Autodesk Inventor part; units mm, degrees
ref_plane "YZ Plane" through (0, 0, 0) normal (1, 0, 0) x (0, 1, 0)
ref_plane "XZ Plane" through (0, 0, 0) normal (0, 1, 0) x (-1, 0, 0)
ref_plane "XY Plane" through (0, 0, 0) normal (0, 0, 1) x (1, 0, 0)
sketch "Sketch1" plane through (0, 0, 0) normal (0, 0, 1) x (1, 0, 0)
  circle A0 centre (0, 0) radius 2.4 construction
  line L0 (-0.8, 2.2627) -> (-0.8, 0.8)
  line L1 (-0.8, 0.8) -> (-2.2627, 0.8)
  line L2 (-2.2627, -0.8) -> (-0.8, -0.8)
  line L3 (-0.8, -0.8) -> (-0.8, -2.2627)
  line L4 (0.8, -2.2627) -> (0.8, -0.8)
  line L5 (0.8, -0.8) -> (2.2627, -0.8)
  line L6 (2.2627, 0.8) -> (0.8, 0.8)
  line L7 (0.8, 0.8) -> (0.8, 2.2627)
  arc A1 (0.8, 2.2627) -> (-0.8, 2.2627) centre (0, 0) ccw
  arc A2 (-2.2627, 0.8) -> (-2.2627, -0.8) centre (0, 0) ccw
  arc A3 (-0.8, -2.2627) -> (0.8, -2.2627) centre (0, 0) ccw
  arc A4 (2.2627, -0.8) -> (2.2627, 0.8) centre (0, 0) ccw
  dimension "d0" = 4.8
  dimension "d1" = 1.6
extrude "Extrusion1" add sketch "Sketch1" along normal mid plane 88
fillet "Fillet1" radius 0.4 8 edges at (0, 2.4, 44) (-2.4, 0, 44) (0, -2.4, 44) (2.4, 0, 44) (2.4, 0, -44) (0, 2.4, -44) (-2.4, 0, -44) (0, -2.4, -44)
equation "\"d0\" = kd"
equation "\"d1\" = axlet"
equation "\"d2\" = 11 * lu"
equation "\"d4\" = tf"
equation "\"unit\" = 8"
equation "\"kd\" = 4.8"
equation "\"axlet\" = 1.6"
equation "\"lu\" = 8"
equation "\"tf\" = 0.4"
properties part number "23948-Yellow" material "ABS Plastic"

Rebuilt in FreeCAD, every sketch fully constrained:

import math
import FreeCAD as App
import Part
import Sketcher


def edges_at(feature, points):
    """Names of the edges that pass closest to the given points."""
    edges = feature.Shape.Edges
    near = lambda p: min(range(len(edges)), key=lambda i: edges[i].distToShape(Part.Vertex(*p))[0])
    return sorted({f"Edge{near(p) + 1}" for p in points})

doc = App.newDocument("Part")
body = doc.addObject("PartDesign::Body", "Body")

sketch1 = body.newObject("Sketcher::SketchObject", "Sketch")
sketch1.AttachmentSupport = (doc.getObject("XY_Plane"), [""])
sketch1.MapMode = "FlatFace"
sketch1.addGeometry(Part.ArcOfCircle(Part.Circle(App.Vector(0, 0, 0), App.Vector(0, 0, 1), 2.4), math.radians(71), math.radians(109)), False)
sketch1.addGeometry(Part.LineSegment(App.Vector(-0.8, 2.3, 0), App.Vector(-0.8, 0.8, 0)), False)
sketch1.addGeometry(Part.LineSegment(App.Vector(-0.8, 0.8, 0), App.Vector(-2.3, 0.8, 0)), False)
sketch1.addGeometry(Part.ArcOfCircle(Part.Circle(App.Vector(0, 0, 0), App.Vector(0, 0, 1), 2.4), math.radians(161), math.radians(199)), False)
sketch1.addGeometry(Part.LineSegment(App.Vector(-2.3, -0.8, 0), App.Vector(-0.8, -0.8, 0)), False)
sketch1.addGeometry(Part.LineSegment(App.Vector(-0.8, -0.8, 0), App.Vector(-0.8, -2.3, 0)), False)
sketch1.addGeometry(Part.ArcOfCircle(Part.Circle(App.Vector(0, 0, 0), App.Vector(0, 0, 1), 2.4), math.radians(-109), math.radians(-71)), False)
sketch1.addGeometry(Part.LineSegment(App.Vector(0.8, -2.3, 0), App.Vector(0.8, -0.8, 0)), False)
sketch1.addGeometry(Part.LineSegment(App.Vector(0.8, -0.8, 0), App.Vector(2.3, -0.8, 0)), False)
sketch1.addGeometry(Part.ArcOfCircle(Part.Circle(App.Vector(0, 0, 0), App.Vector(0, 0, 1), 2.4), math.radians(-19), math.radians(19)), False)
sketch1.addGeometry(Part.LineSegment(App.Vector(2.3, 0.8, 0), App.Vector(0.8, 0.8, 0)), False)
sketch1.addGeometry(Part.LineSegment(App.Vector(0.8, 0.8, 0), App.Vector(0.8, 2.3, 0)), False)
sketch1.addConstraint(Sketcher.Constraint("Coincident", 0, 2, 1, 1))
sketch1.addConstraint(Sketcher.Constraint("Coincident", 1, 2, 2, 1))
sketch1.addConstraint(Sketcher.Constraint("Coincident", 2, 2, 3, 1))
sketch1.addConstraint(Sketcher.Constraint("Coincident", 3, 2, 4, 1))
sketch1.addConstraint(Sketcher.Constraint("Coincident", 4, 2, 5, 1))
sketch1.addConstraint(Sketcher.Constraint("Coincident", 5, 2, 6, 1))
sketch1.addConstraint(Sketcher.Constraint("Coincident", 6, 2, 7, 1))
sketch1.addConstraint(Sketcher.Constraint("Coincident", 7, 2, 8, 1))
sketch1.addConstraint(Sketcher.Constraint("Coincident", 8, 2, 9, 1))
sketch1.addConstraint(Sketcher.Constraint("Coincident", 9, 2, 10, 1))
sketch1.addConstraint(Sketcher.Constraint("Coincident", 10, 2, 11, 1))
sketch1.addConstraint(Sketcher.Constraint("Coincident", 11, 2, 0, 1))
sketch1.addConstraint(Sketcher.Constraint("Vertical", 1))
sketch1.addConstraint(Sketcher.Constraint("Horizontal", 2))
sketch1.addConstraint(Sketcher.Constraint("Horizontal", 4))
sketch1.addConstraint(Sketcher.Constraint("Vertical", 5))
sketch1.addConstraint(Sketcher.Constraint("Vertical", 7))
sketch1.addConstraint(Sketcher.Constraint("Horizontal", 8))
sketch1.addConstraint(Sketcher.Constraint("Horizontal", 10))
sketch1.addConstraint(Sketcher.Constraint("Vertical", 11))
sketch1.addConstraint(Sketcher.Constraint("Coincident", 0, 3, -1, 1))
sketch1.addConstraint(Sketcher.Constraint("Coincident", 3, 3, -1, 1))
sketch1.addConstraint(Sketcher.Constraint("Coincident", 6, 3, -1, 1))
sketch1.addConstraint(Sketcher.Constraint("Coincident", 9, 3, -1, 1))
sketch1.addConstraint(Sketcher.Constraint("Equal", 0, 3))
sketch1.addConstraint(Sketcher.Constraint("Equal", 3, 6))
sketch1.addConstraint(Sketcher.Constraint("Equal", 6, 9))
sketch1.addConstraint(Sketcher.Constraint("Symmetric", 1, 2, 7, 2, -1, 1))
sketch1.addConstraint(Sketcher.Constraint("Symmetric", 4, 2, 10, 2, -1, 1))
sketch1.addConstraint(Sketcher.Constraint("Symmetric", 4, 2, 7, 2, -2))
sketch1.addConstraint(Sketcher.Constraint("Equal", 10, 1))
sketch1.addConstraint(Sketcher.Constraint("Radius", 0, 2.4))
sketch1.addConstraint(Sketcher.Constraint("DistanceY", 3, 2, 2, 2, 1.6))
pad1 = body.newObject("PartDesign::Pad", "Pad")
pad1.Profile = sketch1
pad1.Length = 88
pad1.Midplane = True
doc.recompute()

fillet = body.newObject("PartDesign::Fillet", "Fillet")
fillet.Base = (pad1, edges_at(pad1, [
    (0, 2.4, 44),
    (-2.4, 0, 44),
    (0, -2.4, 44),
    (2.4, 0, 44),
    (2.4, 0, -44),
    (0, 2.4, -44),
    (-2.4, 0, -44),
    (0, -2.4, -44),
]))
fillet.Radius = 0.4

doc.recompute()
